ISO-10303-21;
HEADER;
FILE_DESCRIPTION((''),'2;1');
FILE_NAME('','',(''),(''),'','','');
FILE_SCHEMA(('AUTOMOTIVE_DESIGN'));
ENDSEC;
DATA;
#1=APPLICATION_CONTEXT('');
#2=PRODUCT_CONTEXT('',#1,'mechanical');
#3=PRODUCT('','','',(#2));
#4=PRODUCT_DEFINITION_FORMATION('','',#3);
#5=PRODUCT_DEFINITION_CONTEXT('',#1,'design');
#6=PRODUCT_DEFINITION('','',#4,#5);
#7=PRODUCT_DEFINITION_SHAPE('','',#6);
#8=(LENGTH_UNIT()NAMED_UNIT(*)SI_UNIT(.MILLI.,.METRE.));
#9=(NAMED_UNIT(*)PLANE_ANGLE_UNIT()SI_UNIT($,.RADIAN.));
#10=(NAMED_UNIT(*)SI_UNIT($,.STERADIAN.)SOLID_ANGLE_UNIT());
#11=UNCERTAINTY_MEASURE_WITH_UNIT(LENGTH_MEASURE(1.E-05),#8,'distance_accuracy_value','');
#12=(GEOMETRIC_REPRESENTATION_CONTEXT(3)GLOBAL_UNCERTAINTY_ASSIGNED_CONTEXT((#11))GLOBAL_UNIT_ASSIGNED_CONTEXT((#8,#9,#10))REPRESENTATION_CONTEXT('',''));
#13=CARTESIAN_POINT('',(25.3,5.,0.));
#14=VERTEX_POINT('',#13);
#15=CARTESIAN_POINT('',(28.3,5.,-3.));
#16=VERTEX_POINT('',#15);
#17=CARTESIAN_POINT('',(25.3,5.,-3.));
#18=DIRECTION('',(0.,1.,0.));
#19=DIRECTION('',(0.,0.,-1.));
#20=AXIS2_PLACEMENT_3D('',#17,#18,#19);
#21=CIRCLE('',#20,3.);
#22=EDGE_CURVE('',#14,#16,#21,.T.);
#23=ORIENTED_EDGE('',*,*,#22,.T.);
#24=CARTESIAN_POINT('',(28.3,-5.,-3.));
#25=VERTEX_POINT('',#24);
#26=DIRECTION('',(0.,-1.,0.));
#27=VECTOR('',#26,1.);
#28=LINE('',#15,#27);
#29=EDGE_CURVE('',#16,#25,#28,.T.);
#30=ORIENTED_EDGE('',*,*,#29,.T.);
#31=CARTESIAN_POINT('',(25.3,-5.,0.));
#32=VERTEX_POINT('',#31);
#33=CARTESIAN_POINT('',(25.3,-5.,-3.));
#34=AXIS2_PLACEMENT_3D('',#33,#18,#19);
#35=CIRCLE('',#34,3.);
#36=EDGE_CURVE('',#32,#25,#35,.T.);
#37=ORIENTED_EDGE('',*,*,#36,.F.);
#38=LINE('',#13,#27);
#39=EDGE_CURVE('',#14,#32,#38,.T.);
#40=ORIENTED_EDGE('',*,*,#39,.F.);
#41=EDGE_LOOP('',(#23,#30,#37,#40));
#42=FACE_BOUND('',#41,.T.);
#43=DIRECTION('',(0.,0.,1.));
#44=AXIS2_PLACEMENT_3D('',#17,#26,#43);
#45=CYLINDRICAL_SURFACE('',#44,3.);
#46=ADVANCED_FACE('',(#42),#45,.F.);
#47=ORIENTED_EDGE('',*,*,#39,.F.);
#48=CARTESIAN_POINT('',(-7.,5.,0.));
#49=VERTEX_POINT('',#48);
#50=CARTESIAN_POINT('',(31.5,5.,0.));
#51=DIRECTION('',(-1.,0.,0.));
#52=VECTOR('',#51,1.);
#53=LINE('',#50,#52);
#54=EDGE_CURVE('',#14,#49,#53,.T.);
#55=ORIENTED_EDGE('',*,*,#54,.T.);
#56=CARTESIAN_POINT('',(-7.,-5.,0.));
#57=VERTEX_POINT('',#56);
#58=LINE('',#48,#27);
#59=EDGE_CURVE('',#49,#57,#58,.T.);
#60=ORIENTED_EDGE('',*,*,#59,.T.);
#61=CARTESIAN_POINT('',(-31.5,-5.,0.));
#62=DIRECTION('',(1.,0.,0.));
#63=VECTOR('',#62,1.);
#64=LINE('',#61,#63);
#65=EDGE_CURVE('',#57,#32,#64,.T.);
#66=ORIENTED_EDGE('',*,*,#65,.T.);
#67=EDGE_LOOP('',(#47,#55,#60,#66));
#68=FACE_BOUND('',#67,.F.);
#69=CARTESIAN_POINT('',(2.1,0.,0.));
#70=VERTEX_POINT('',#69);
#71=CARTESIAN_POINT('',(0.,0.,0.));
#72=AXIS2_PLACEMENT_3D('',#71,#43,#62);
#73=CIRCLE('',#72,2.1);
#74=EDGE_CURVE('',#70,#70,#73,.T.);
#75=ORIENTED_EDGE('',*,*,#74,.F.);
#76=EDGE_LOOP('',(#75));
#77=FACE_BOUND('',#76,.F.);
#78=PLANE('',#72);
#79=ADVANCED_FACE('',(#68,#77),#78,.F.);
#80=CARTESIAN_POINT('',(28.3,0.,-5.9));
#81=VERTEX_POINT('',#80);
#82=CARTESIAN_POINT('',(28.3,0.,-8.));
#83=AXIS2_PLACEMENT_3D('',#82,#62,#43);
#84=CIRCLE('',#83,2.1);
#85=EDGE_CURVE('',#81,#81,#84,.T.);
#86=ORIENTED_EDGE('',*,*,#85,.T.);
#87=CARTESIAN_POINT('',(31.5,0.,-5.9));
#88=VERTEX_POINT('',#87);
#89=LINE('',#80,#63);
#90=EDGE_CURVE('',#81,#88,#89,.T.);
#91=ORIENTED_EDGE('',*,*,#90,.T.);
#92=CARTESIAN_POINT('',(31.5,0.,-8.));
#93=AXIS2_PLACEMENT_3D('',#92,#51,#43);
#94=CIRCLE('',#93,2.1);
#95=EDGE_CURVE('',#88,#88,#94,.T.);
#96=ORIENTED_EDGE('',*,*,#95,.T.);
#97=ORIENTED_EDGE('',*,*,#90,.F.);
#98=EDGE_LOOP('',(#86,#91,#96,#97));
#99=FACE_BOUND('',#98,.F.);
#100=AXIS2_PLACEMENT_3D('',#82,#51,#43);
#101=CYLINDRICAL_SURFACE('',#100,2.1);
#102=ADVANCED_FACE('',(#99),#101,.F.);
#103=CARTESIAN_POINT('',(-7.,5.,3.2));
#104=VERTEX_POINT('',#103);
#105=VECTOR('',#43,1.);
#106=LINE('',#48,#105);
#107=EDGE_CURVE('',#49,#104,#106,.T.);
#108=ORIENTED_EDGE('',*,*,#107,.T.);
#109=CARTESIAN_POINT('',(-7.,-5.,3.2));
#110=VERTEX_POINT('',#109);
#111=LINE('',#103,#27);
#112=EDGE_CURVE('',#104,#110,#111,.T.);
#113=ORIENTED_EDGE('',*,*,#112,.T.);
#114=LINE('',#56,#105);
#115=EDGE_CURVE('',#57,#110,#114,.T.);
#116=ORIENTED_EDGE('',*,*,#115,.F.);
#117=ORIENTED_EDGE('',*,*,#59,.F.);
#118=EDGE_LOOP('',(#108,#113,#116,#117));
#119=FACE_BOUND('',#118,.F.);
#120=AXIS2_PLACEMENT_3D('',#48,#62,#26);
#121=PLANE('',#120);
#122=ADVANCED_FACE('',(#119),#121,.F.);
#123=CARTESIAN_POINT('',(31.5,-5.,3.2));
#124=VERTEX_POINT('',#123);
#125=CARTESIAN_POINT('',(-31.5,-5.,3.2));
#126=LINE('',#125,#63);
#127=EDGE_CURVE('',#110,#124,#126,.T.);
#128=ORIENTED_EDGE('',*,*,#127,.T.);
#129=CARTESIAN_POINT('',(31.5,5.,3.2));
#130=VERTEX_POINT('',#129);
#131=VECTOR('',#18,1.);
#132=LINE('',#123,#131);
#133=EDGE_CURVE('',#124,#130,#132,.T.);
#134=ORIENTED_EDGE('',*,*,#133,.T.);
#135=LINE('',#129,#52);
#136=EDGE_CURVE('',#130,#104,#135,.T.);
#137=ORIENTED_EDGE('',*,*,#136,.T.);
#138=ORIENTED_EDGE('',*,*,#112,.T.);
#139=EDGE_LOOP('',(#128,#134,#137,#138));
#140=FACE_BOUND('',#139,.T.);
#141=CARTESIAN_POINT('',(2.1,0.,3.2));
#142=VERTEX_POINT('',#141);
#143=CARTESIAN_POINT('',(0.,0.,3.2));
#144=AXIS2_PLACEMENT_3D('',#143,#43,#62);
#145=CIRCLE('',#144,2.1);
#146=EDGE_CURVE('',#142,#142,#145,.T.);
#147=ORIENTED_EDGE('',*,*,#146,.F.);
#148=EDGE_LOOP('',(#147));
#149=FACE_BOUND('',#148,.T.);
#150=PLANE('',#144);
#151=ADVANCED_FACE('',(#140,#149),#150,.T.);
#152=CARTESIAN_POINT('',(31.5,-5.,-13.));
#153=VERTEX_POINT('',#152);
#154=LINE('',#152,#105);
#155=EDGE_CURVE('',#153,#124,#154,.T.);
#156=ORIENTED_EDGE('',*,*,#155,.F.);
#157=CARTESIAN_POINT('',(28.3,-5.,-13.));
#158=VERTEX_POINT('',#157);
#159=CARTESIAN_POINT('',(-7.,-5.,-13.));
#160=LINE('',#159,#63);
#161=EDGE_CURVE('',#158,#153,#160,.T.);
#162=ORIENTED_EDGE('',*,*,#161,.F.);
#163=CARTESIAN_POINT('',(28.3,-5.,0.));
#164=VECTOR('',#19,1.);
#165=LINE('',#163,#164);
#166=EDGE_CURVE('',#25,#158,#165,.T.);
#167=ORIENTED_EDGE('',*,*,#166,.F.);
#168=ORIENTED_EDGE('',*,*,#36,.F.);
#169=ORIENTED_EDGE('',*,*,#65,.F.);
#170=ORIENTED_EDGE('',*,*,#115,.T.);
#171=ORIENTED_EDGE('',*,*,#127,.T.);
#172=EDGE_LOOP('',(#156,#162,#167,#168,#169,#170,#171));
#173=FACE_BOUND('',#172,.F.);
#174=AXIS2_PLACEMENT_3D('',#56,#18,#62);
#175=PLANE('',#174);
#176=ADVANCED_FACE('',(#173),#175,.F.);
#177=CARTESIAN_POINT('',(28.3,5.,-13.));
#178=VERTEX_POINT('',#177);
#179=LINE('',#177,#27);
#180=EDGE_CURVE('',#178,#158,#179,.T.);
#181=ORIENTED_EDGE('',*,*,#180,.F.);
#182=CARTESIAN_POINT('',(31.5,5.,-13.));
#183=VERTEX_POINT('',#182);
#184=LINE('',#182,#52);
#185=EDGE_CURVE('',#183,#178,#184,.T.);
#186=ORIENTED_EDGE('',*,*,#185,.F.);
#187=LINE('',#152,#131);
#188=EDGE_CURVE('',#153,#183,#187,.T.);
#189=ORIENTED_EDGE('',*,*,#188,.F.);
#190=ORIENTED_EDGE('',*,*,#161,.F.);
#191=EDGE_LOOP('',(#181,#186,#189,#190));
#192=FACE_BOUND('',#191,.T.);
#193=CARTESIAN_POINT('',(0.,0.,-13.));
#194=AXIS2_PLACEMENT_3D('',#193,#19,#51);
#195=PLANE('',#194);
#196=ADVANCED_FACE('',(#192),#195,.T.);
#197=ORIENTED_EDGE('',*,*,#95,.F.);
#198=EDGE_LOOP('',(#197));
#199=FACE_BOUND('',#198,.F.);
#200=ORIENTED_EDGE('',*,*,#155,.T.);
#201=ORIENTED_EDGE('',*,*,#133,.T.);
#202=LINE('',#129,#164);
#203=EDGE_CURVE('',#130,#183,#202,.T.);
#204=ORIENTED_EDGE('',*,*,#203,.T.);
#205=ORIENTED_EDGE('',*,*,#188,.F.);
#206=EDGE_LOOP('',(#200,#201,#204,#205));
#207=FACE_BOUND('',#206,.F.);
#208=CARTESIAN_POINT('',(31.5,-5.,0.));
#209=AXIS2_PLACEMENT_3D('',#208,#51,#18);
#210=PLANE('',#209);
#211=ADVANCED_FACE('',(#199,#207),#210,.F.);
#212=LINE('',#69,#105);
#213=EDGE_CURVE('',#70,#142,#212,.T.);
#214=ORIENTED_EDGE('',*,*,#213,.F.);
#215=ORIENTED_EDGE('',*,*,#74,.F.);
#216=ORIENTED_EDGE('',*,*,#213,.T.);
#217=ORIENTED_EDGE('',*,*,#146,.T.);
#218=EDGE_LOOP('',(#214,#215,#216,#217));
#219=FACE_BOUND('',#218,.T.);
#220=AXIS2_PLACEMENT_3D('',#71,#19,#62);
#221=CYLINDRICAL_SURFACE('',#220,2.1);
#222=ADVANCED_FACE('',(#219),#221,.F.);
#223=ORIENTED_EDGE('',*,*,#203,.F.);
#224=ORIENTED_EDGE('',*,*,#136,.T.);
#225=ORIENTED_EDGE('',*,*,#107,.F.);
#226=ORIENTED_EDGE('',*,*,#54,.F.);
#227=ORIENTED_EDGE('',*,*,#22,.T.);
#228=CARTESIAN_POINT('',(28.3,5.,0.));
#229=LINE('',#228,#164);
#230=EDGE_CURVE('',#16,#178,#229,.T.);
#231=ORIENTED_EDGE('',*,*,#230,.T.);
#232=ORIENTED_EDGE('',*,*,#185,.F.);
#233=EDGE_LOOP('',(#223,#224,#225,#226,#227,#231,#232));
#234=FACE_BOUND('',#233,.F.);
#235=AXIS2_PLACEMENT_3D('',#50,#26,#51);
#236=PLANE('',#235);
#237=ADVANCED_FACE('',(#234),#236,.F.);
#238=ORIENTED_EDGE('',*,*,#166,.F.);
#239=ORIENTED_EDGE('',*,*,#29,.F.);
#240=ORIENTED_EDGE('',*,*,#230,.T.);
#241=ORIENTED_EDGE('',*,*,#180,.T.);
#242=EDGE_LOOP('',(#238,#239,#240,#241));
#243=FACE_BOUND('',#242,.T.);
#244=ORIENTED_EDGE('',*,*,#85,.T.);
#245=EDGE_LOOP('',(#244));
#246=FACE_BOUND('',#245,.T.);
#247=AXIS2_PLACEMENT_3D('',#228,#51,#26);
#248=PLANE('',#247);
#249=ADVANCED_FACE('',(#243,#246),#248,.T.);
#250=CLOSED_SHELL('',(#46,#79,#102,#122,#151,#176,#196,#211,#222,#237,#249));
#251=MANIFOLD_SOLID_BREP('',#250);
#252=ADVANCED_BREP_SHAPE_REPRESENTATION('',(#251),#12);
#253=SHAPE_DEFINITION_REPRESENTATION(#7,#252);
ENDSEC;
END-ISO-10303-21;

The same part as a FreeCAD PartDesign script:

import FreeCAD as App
import Part
import Sketcher

V = App.Vector


def edges_at(feature, points):
    """Names of the edges that pass closest to the given points."""
    edges = feature.Shape.Edges
    near = lambda p: min(range(len(edges)), key=lambda i: edges[i].distToShape(Part.Vertex(*p))[0])
    return sorted({f"Edge{near(p) + 1}" for p in points})

doc = App.newDocument("Part")
params = doc.addObject("Spreadsheet::Sheet", "Params")
for row, (alias, value) in enumerate([
    ("sketch1_diameter", "4.2 mm"),
    ("sketch1_height", "10 mm"),
    ("sketch1_width", "38.5 mm"),
    ("pad1_length", "3.2 mm"),
    ("sketch2_width", "3.2 mm"),
    ("sketch2_height", "10 mm"),
    ("pad2_length", "13 mm"),
    ("fillet_radius", "3 mm"),
    ("sketch3_diameter", "4.2 mm"),
    ("pocket1_length", "13 mm"),
], start=1):
    params.set(f"A{row}", alias)
    params.set(f"B{row}", "=" + value)
    params.setAlias(f"B{row}", alias)

body = doc.addObject("PartDesign::Body", "Body")

sketch1 = body.newObject("Sketcher::SketchObject", "Sketch")
sketch1.AttachmentSupport = (doc.getObject("XY_Plane"), [""])
sketch1.MapMode = "FlatFace"
sketch1.addGeometry([
    Part.LineSegment(V(-7, 5, 0), V(-7, -5, 0)),
    Part.LineSegment(V(-7, -5, 0), V(31.5, -5, 0)),
    Part.LineSegment(V(31.5, -5, 0), V(31.5, 5, 0)),
    Part.LineSegment(V(31.5, 5, 0), V(-7, 5, 0)),
    Part.Circle(V(0, 0, 0), V(0, 0, 1), 2.1),
], False)
sketch1.addConstraint([
    Sketcher.Constraint("Coincident", 0, 2, 1, 1),
    Sketcher.Constraint("Coincident", 1, 2, 2, 1),
    Sketcher.Constraint("Coincident", 2, 2, 3, 1),
    Sketcher.Constraint("Coincident", 3, 2, 0, 1),
    Sketcher.Constraint("Vertical", 0),
    Sketcher.Constraint("Horizontal", 1),
    Sketcher.Constraint("Vertical", 2),
    Sketcher.Constraint("Horizontal", 3),
    Sketcher.Constraint("Coincident", 4, 3, -1, 1),
    Sketcher.Constraint("Diameter", 4, 4.2),
    Sketcher.Constraint("DistanceY", 0, 2, 0, 1, 10.0),
    Sketcher.Constraint("DistanceX", 0, 2, -1, 1, 7.0),
    Sketcher.Constraint("DistanceX", 1, 1, 1, 2, 38.5),
    Sketcher.Constraint("DistanceY", 0, 2, -1, 1, 5.0),
])
sketch1.setExpression("Constraints[9]", "Params.sketch1_diameter")
sketch1.setExpression("Constraints[10]", "Params.sketch1_height")
sketch1.setExpression("Constraints[12]", "Params.sketch1_width")
pad1 = body.newObject("PartDesign::Pad", "Pad")
pad1.Profile = sketch1
pad1.setExpression("Length", "Params.pad1_length")

sketch2 = body.newObject("Sketcher::SketchObject", "Sketch001")
sketch2.AttachmentSupport = (doc.getObject("XY_Plane"), [""])
sketch2.MapMode = "FlatFace"
sketch2.addGeometry([
    Part.LineSegment(V(28.3, 5, 0), V(31.5, 5, 0)),
    Part.LineSegment(V(31.5, 5, 0), V(31.5, -5, 0)),
    Part.LineSegment(V(31.5, -5, 0), V(28.3, -5, 0)),
    Part.LineSegment(V(28.3, -5, 0), V(28.3, 5, 0)),
], False)
sketch2.addConstraint([
    Sketcher.Constraint("Coincident", 0, 2, 1, 1),
    Sketcher.Constraint("Coincident", 1, 2, 2, 1),
    Sketcher.Constraint("Coincident", 2, 2, 3, 1),
    Sketcher.Constraint("Coincident", 3, 2, 0, 1),
    Sketcher.Constraint("Horizontal", 0),
    Sketcher.Constraint("Vertical", 1),
    Sketcher.Constraint("Horizontal", 2),
    Sketcher.Constraint("Vertical", 3),
    Sketcher.Constraint("DistanceX", 0, 1, 0, 2, 3.2),
    Sketcher.Constraint("DistanceY", 1, 2, 1, 1, 10.0),
    Sketcher.Constraint("DistanceY", -1, 1, 0, 2, 5.0),
    Sketcher.Constraint("DistanceX", -1, 1, 0, 2, 31.5),
])
sketch2.setExpression("Constraints[8]", "Params.sketch2_width")
sketch2.setExpression("Constraints[9]", "Params.sketch2_height")
pad2 = body.newObject("PartDesign::Pad", "Pad001")
pad2.Profile = sketch2
pad2.setExpression("Length", "Params.pad2_length")
pad2.Reversed = True
doc.recompute()

fillet = body.newObject("PartDesign::Fillet", "Fillet")
fillet.Base = (pad2, edges_at(pad2, [(28.3, 0, 0)]))
fillet.setExpression("Radius", "Params.fillet_radius")

sketch3 = body.newObject("Sketcher::SketchObject", "Sketch002")
sketch3.AttachmentSupport = (doc.getObject("YZ_Plane"), [""])
sketch3.MapMode = "FlatFace"
sketch3.AttachmentOffset = App.Placement(V(0, 0, 28.3), App.Rotation())
sketch3.addGeometry(Part.Circle(V(0, -8, 0), V(0, 0, 1), 2.1), False)
sketch3.addConstraint([
    Sketcher.Constraint("PointOnObject", 0, 3, -2),
    Sketcher.Constraint("Diameter", 0, 4.2),
    Sketcher.Constraint("DistanceY", 0, 3, -1, 1, 8.0),
])
sketch3.setExpression("Constraints[1]", "Params.sketch3_diameter")
pocket1 = body.newObject("PartDesign::Pocket", "Pocket")
pocket1.Profile = sketch3
pocket1.setExpression("Length", "Params.pocket1_length")
pocket1.Reversed = True

doc.recompute()
